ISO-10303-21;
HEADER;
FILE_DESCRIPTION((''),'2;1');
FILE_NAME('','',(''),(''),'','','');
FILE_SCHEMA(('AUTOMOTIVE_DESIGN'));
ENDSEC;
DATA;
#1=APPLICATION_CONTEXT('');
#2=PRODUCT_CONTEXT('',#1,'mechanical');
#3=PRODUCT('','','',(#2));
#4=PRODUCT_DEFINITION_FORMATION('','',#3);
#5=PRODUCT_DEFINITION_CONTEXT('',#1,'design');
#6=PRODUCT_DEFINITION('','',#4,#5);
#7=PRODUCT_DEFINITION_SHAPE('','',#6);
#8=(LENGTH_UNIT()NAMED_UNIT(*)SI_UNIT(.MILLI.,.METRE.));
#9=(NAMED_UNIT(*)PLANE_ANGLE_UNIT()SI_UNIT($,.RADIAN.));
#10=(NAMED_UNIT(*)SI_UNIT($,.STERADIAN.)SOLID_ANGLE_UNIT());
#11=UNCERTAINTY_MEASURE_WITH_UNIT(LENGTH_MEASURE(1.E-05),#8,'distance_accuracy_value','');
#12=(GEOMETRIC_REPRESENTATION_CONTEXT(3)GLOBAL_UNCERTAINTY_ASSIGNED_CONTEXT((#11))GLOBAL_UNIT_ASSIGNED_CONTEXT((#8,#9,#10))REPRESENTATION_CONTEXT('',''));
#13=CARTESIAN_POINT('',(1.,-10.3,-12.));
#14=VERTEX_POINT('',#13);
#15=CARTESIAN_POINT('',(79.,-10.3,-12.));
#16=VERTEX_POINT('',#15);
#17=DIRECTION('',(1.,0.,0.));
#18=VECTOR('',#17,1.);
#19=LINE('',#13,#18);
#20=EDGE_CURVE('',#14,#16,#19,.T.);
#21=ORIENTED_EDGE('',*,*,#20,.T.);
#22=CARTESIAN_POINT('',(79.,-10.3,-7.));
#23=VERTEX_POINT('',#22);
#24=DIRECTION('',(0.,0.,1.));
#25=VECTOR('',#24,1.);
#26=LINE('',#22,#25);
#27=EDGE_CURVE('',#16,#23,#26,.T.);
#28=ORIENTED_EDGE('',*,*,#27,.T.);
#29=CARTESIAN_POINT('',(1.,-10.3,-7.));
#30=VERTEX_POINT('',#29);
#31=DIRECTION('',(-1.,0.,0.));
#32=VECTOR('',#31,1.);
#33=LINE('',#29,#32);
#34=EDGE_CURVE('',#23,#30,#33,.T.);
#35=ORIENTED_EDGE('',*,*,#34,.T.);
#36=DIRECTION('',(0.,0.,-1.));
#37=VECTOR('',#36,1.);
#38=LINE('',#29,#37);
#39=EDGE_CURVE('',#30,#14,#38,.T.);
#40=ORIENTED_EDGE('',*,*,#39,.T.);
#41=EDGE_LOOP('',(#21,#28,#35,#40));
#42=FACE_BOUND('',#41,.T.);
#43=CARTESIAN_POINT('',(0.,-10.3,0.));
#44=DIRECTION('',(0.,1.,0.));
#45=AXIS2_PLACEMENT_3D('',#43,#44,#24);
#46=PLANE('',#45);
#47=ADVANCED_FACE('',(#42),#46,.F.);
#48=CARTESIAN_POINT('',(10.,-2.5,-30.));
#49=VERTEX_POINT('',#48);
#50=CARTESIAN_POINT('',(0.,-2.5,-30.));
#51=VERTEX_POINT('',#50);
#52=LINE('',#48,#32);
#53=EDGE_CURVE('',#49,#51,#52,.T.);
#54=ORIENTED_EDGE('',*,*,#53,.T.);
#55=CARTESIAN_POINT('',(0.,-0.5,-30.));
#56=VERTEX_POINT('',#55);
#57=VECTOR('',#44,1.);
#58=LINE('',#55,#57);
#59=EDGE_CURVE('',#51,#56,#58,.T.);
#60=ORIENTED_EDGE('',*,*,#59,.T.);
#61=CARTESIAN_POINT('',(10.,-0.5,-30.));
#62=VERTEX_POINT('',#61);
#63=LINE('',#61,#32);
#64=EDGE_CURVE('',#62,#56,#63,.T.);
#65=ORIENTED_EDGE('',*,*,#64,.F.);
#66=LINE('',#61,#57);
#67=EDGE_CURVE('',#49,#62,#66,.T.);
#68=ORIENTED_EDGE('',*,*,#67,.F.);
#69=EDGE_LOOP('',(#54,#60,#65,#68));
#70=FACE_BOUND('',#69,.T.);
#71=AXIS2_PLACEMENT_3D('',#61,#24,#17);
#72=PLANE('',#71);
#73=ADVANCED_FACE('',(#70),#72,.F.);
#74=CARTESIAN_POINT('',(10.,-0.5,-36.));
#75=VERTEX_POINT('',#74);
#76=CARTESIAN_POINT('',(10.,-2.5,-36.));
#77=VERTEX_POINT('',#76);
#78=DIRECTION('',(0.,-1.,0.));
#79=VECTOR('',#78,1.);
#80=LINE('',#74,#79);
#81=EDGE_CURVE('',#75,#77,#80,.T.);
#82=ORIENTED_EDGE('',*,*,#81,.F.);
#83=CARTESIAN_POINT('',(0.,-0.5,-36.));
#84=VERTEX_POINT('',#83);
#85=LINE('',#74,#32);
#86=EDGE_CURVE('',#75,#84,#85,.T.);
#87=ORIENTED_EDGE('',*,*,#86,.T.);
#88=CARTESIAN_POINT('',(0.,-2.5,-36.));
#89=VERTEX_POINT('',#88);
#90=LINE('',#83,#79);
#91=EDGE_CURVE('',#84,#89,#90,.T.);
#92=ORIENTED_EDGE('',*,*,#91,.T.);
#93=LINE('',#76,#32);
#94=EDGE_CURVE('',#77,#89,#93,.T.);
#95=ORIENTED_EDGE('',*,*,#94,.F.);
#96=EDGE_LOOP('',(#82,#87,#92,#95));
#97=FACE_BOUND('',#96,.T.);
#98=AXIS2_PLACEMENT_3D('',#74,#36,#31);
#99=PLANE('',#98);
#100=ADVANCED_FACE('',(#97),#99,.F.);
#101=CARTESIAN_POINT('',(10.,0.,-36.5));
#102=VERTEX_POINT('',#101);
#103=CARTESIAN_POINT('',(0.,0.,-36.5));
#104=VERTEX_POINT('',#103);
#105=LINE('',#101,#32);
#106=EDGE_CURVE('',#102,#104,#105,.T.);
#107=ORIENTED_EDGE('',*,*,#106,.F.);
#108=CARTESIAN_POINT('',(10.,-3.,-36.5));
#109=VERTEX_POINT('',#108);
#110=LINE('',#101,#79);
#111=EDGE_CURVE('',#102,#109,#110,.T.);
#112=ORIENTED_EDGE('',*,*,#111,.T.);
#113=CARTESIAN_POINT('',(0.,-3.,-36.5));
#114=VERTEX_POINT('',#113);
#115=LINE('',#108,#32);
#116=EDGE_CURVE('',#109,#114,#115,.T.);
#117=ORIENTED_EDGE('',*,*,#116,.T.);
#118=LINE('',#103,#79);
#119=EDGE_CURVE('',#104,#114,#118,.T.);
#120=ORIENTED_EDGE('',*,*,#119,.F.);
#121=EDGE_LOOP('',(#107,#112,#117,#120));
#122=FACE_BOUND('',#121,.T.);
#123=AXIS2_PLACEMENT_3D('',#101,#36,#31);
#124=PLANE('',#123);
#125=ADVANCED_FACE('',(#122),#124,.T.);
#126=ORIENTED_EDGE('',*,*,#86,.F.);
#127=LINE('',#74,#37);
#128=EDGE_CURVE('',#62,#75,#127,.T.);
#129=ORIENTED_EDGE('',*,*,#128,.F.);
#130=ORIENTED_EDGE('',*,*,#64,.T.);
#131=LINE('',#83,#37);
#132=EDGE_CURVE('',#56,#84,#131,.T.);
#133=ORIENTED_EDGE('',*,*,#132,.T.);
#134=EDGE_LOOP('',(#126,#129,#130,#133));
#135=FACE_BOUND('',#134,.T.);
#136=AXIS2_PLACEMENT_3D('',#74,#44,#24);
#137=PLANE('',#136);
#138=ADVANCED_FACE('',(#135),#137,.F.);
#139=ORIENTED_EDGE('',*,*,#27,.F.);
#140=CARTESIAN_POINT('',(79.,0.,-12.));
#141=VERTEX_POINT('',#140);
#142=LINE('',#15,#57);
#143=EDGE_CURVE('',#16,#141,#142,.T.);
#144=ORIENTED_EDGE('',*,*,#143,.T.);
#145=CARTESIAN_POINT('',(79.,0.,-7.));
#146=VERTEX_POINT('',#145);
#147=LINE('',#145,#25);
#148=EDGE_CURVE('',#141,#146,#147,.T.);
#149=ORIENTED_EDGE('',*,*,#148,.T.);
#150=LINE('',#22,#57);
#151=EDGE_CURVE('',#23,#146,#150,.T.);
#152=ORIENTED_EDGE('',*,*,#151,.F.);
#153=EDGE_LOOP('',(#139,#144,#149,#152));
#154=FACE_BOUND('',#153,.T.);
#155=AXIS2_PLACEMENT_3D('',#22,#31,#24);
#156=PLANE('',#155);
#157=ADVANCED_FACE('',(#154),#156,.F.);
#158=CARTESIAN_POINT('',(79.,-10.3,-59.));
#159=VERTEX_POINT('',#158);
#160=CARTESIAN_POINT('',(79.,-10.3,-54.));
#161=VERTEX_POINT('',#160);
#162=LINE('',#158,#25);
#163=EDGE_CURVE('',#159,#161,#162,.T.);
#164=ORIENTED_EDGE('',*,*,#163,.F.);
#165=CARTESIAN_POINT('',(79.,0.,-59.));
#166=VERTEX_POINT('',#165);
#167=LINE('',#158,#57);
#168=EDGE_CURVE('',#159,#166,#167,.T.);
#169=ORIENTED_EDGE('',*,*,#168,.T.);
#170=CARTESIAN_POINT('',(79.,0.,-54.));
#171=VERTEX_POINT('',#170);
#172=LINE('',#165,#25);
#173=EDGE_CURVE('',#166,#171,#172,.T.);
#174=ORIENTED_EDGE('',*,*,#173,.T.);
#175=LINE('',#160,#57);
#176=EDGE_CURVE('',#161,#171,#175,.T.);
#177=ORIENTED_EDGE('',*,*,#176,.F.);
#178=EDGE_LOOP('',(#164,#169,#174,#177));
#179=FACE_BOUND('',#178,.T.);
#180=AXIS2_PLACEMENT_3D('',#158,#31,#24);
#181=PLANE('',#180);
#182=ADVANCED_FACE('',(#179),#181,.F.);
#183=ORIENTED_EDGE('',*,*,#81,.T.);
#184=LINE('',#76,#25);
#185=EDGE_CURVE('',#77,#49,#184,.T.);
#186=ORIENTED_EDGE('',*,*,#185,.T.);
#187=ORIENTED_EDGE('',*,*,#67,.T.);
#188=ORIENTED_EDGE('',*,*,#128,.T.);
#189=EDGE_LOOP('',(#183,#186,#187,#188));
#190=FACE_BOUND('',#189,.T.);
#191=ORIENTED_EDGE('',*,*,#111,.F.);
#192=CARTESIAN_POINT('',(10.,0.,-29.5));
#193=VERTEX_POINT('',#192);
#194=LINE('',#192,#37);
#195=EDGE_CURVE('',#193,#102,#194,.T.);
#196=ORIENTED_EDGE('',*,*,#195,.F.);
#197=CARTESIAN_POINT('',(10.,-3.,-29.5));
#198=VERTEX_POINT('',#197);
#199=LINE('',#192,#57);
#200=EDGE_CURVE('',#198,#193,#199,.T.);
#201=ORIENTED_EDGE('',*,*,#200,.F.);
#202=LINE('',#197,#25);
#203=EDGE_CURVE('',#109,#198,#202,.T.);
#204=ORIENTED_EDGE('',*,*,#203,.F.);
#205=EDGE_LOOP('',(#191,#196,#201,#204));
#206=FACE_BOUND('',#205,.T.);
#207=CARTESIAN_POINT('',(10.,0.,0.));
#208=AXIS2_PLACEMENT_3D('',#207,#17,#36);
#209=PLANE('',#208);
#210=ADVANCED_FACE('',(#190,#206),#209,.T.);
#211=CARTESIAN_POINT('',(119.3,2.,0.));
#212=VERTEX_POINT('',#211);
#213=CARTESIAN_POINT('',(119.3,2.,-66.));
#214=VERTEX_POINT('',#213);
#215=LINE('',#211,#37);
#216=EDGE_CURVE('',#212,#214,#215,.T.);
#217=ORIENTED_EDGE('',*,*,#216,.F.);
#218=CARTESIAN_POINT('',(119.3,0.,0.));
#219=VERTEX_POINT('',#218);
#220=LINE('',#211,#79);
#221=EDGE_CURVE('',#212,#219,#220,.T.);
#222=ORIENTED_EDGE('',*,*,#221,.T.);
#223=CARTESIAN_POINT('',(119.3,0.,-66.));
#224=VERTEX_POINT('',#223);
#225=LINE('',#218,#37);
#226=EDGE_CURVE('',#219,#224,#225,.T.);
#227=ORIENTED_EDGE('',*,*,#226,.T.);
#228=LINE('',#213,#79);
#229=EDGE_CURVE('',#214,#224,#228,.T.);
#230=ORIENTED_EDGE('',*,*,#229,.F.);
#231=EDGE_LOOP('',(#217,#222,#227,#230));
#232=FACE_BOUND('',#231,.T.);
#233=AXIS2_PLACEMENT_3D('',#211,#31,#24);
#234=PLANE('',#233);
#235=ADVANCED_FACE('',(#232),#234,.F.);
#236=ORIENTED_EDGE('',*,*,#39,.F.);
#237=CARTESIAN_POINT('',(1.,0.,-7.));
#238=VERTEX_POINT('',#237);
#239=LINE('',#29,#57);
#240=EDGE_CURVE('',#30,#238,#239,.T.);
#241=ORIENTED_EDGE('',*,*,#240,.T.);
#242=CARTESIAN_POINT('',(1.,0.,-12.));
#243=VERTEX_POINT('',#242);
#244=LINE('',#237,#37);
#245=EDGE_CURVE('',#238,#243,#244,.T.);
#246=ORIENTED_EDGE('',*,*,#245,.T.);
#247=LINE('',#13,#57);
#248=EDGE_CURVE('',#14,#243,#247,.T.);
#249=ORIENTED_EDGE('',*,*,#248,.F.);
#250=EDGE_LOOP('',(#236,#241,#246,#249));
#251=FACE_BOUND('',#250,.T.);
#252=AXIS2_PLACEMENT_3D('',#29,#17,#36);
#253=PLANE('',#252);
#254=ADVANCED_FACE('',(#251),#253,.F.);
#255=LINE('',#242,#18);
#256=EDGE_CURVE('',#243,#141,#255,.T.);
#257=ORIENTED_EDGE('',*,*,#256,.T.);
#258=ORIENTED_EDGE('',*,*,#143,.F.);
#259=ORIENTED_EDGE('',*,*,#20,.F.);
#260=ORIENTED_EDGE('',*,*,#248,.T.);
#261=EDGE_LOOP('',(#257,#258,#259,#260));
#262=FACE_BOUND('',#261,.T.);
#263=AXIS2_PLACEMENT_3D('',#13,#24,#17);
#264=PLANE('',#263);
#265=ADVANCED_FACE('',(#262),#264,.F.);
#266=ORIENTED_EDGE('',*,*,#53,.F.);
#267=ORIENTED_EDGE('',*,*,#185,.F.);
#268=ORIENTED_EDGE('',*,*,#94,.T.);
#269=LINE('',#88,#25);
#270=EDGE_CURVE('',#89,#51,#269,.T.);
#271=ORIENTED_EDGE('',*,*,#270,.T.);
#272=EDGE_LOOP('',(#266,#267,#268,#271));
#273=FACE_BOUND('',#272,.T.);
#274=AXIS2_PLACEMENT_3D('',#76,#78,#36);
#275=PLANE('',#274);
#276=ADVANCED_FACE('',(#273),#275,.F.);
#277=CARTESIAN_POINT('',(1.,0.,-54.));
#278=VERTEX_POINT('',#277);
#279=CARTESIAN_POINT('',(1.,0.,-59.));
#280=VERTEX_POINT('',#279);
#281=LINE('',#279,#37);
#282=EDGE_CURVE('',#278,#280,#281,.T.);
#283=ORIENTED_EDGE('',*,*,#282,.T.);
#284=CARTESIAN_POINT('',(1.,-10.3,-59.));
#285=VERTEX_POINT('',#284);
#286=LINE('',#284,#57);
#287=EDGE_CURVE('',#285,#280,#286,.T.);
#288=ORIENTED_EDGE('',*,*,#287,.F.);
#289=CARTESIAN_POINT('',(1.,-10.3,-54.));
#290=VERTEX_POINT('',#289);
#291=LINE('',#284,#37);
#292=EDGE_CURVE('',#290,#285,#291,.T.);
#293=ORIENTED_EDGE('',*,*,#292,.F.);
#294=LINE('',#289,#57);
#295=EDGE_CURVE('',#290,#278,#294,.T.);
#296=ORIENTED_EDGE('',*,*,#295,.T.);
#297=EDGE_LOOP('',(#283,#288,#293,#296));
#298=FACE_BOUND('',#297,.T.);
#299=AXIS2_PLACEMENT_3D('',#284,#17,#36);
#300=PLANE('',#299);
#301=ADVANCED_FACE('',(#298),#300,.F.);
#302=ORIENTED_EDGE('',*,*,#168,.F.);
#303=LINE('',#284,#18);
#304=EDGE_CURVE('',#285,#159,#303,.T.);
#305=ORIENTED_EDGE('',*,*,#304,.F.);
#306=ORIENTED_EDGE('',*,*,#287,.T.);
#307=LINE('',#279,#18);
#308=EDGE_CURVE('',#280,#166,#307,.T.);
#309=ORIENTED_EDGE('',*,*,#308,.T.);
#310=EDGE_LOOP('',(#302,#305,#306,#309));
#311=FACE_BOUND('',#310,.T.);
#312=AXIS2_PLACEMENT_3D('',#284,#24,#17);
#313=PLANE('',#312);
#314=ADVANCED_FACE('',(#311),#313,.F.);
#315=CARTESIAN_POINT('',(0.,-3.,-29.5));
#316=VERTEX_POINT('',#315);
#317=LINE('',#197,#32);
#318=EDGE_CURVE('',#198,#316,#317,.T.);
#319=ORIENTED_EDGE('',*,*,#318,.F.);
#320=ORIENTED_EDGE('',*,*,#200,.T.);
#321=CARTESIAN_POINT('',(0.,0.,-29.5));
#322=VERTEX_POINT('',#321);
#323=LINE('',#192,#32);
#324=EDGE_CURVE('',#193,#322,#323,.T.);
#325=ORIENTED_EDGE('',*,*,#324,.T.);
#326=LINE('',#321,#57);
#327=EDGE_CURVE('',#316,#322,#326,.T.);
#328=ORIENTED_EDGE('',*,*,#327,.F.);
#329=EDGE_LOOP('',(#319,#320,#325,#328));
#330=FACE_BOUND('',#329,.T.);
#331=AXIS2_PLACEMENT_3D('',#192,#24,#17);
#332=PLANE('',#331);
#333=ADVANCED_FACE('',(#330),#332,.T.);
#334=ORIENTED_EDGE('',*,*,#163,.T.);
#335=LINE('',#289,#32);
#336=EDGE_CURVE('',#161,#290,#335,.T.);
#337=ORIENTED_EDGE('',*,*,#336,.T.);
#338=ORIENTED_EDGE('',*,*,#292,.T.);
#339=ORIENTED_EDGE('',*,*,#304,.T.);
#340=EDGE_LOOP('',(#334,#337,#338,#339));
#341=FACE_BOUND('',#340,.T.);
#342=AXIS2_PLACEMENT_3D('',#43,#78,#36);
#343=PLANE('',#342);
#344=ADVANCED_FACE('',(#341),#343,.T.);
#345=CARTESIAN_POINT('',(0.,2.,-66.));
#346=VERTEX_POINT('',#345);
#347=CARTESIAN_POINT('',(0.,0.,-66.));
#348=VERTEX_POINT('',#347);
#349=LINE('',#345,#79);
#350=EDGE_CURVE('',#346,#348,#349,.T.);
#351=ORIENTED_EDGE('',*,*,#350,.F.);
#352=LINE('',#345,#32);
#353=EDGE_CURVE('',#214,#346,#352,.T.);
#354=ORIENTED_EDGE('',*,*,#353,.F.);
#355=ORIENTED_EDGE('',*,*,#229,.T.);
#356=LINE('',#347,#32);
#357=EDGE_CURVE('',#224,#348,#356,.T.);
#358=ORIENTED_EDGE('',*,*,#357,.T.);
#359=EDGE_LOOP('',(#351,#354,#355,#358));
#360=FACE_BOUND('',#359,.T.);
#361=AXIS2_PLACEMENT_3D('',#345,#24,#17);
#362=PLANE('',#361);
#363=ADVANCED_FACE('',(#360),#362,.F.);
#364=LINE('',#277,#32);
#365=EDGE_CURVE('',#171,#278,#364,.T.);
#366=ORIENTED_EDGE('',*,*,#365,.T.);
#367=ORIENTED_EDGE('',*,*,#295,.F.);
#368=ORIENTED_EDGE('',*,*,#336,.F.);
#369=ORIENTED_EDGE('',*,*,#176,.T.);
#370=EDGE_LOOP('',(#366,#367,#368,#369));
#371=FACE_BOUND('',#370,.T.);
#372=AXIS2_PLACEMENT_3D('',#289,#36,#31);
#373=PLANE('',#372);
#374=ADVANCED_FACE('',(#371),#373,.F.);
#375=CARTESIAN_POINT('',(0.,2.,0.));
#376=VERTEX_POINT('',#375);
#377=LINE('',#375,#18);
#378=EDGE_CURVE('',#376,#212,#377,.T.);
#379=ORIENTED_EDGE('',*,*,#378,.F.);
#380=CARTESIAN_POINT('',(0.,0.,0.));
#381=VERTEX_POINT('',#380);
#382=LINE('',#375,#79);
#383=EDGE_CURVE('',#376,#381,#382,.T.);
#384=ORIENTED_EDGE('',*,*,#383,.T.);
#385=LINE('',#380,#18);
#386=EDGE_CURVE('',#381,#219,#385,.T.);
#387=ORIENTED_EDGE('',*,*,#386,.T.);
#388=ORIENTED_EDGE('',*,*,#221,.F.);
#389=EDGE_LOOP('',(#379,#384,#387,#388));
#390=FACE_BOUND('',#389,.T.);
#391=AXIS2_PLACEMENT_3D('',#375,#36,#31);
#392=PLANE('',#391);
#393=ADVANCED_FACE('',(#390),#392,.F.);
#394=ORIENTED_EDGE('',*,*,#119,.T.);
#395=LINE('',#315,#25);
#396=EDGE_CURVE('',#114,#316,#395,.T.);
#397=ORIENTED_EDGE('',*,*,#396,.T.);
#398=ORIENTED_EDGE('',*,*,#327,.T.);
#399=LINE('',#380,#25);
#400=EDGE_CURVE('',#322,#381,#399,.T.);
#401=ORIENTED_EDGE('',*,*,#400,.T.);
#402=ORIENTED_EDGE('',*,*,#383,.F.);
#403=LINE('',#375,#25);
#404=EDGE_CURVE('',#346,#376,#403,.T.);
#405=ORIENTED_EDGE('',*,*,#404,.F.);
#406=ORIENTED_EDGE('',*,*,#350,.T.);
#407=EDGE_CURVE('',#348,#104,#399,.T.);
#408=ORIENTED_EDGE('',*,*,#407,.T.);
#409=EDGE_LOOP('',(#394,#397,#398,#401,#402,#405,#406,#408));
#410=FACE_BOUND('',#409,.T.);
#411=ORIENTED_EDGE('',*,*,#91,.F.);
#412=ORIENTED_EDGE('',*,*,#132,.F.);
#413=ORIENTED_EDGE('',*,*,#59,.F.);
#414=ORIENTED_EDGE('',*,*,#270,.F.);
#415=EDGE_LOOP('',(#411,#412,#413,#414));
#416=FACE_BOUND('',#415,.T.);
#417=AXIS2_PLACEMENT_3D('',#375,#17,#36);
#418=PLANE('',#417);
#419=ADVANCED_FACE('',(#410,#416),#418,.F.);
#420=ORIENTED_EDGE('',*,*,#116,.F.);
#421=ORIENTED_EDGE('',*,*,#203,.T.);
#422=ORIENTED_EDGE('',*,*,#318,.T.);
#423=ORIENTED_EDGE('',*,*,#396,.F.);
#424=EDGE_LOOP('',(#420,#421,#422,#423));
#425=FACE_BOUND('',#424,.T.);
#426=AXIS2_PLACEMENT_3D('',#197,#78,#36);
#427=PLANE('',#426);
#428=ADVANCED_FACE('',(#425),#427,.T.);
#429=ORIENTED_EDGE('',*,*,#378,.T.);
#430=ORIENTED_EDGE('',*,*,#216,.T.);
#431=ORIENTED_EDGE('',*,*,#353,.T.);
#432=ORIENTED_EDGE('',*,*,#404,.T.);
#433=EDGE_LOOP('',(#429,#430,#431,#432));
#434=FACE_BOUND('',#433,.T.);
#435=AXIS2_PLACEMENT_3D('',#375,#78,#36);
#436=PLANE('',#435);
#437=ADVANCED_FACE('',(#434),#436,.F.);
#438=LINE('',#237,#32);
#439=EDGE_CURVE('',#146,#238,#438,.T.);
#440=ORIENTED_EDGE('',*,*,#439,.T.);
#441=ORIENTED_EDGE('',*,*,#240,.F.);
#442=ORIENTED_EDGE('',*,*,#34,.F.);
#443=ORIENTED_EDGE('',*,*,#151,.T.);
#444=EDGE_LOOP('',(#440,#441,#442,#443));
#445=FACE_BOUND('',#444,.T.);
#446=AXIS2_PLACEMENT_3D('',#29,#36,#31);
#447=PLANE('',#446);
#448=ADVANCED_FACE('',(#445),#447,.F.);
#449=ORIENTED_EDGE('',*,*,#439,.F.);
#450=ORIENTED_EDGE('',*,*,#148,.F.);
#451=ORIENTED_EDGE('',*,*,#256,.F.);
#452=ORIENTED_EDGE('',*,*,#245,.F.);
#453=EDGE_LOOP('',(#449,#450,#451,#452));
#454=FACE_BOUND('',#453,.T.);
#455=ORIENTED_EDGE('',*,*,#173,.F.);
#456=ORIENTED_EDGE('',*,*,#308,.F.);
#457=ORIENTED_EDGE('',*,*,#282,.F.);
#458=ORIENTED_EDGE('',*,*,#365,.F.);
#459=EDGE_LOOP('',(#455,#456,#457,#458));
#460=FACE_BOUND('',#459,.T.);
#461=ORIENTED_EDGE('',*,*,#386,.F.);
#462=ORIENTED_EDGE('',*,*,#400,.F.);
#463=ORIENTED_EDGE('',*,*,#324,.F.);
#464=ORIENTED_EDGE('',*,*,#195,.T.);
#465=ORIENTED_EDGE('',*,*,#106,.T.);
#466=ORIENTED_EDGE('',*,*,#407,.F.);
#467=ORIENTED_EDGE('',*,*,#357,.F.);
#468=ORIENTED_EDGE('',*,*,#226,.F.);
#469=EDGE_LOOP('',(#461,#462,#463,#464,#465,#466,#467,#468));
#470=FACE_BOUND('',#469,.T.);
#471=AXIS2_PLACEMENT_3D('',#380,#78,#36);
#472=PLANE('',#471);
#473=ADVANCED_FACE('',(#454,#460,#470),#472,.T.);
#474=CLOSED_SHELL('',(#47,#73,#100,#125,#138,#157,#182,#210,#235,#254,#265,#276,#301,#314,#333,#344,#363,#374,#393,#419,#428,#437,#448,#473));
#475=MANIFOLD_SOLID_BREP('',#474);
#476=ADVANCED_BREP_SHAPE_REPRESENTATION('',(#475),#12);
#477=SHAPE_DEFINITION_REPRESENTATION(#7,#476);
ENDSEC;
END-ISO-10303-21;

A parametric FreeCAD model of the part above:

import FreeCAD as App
import Part
import Sketcher
from FreeCAD import Vector
Q = App.Units.Quantity


def add_polygon(sketch, points):
    """Adds a closed chain of lines whose ends are joined by coincident constraints."""
    first, n = sketch.GeometryCount, len(points)
    for a, b in zip(points, points[1:] + points[:1]):
        sketch.addGeometry(Part.LineSegment(App.Vector(*a, 0), App.Vector(*b, 0)), False)
    for i in range(n):
        sketch.addConstraint(Sketcher.Constraint("Coincident", first + i, 2, first + (i + 1) % n, 1))

doc = App.newDocument("Part")
body = doc.addObject("PartDesign::Body", "Body")

sketch1 = body.newObject("Sketcher::SketchObject", "Sketch")
sketch1.AttachmentSupport = (doc.getObject("XZ_Plane"), [""])
sketch1.MapMode = "FlatFace"
add_polygon(sketch1, [(0, -66), (0, 0), (119, 0), (119, -66)])
sketch1.addConstraint(Sketcher.Constraint("Vertical", 0))
sketch1.addConstraint(Sketcher.Constraint("Horizontal", 1))
sketch1.addConstraint(Sketcher.Constraint("Vertical", 2))
sketch1.addConstraint(Sketcher.Constraint("Horizontal", 3))
sketch1.addConstraint(Sketcher.Constraint("Coincident", 0, 2, -1, 1))
sketch1.addConstraint(Sketcher.Constraint("DistanceY", 0, 1, 0, 2, Q("66 mm")))
sketch1.addConstraint(Sketcher.Constraint("DistanceX", 1, 1, 1, 2, Q("119.3 mm")))
pad1 = body.newObject("PartDesign::Pad", "Pad")
pad1.Profile = sketch1
pad1.Length = 2
pad1.Reversed = True

sketch2 = body.newObject("Sketcher::SketchObject", "Sketch001")
sketch2.AttachmentSupport = (doc.getObject("XZ_Plane"), [""])
sketch2.MapMode = "FlatFace"
add_polygon(sketch2, [(1, -7), (1, -12), (79, -12), (79, -7)])
add_polygon(sketch2, [(1, -54), (1, -59), (79, -59), (79, -54)])
sketch2.addConstraint(Sketcher.Constraint("Vertical", 0))
sketch2.addConstraint(Sketcher.Constraint("Horizontal", 1))
sketch2.addConstraint(Sketcher.Constraint("Vertical", 2))
sketch2.addConstraint(Sketcher.Constraint("Horizontal", 3))
sketch2.addConstraint(Sketcher.Constraint("Vertical", 4))
sketch2.addConstraint(Sketcher.Constraint("Horizontal", 5))
sketch2.addConstraint(Sketcher.Constraint("Vertical", 6))
sketch2.addConstraint(Sketcher.Constraint("Horizontal", 7))
sketch2.addConstraint(Sketcher.Constraint("Vertical", 3, 2, 4, 2))
sketch2.addConstraint(Sketcher.Constraint("Vertical", 2, 2, 5, 2))
sketch2.addConstraint(Sketcher.Constraint("Equal", 2, 4))
sketch2.addConstraint(Sketcher.Constraint("DistanceX", 1, 1, 1, 2, Q("78 mm")))
sketch2.addConstraint(Sketcher.Constraint("DistanceY", 0, 2, 0, 1, Q("5 mm")))
sketch2.addConstraint(Sketcher.Constraint("DistanceX", -1, 1, 0, 2, Q("1 mm")))
sketch2.addConstraint(Sketcher.Constraint("DistanceY", 0, 2, -1, 1, Q("12 mm")))
sketch2.addConstraint(Sketcher.Constraint("DistanceY", 4, 2, -1, 1, Q("59 mm")))
pad2 = body.newObject("PartDesign::Pad", "Pad001")
pad2.Profile = sketch2
pad2.Length = 10.3

sketch3 = body.newObject("Sketcher::SketchObject", "Sketch002")
sketch3.AttachmentSupport = (doc.getObject("YZ_Plane"), [""])
sketch3.MapMode = "FlatFace"
add_polygon(sketch3, [(0, -36.5), (-3, -36.5), (-3, -29.5), (0, -29.5)])
add_polygon(sketch3, [(-2.5, -30), (-2.5, -36), (-0.5, -36), (-0.5, -30)])
sketch3.addConstraint(Sketcher.Constraint("Horizontal", 0))
sketch3.addConstraint(Sketcher.Constraint("Vertical", 1))
sketch3.addConstraint(Sketcher.Constraint("Horizontal", 2))
sketch3.addConstraint(Sketcher.Constraint("Vertical", 3))
sketch3.addConstraint(Sketcher.Constraint("Vertical", 4))
sketch3.addConstraint(Sketcher.Constraint("Horizontal", 5))
sketch3.addConstraint(Sketcher.Constraint("Vertical", 6))
sketch3.addConstraint(Sketcher.Constraint("Horizontal", 7))
sketch3.addConstraint(Sketcher.Constraint("PointOnObject", 2, 2, -2))
sketch3.addConstraint(Sketcher.Constraint("DistanceX", 0, 2, 0, 1, Q("3 mm")))
sketch3.addConstraint(Sketcher.Constraint("DistanceX", 5, 1, 5, 2, Q("2 mm")))
sketch3.addConstraint(Sketcher.Constraint("DistanceY", 1, 1, 1, 2, Q("7 mm")))
sketch3.addConstraint(Sketcher.Constraint("DistanceY", 4, 2, 4, 1, Q("6 mm")))
sketch3.addConstraint(Sketcher.Constraint("DistanceY", 4, 2, -1, 1, Q("36 mm")))
sketch3.addConstraint(Sketcher.Constraint("DistanceY", 0, 2, -1, 1, Q("36.5 mm")))
sketch3.addConstraint(Sketcher.Constraint("DistanceX", 4, 2, -1, 1, Q("2.5 mm")))
pad3 = body.newObject("PartDesign::Pad", "Pad002")
pad3.Profile = sketch3
pad3.Length = 10

doc.recompute()
